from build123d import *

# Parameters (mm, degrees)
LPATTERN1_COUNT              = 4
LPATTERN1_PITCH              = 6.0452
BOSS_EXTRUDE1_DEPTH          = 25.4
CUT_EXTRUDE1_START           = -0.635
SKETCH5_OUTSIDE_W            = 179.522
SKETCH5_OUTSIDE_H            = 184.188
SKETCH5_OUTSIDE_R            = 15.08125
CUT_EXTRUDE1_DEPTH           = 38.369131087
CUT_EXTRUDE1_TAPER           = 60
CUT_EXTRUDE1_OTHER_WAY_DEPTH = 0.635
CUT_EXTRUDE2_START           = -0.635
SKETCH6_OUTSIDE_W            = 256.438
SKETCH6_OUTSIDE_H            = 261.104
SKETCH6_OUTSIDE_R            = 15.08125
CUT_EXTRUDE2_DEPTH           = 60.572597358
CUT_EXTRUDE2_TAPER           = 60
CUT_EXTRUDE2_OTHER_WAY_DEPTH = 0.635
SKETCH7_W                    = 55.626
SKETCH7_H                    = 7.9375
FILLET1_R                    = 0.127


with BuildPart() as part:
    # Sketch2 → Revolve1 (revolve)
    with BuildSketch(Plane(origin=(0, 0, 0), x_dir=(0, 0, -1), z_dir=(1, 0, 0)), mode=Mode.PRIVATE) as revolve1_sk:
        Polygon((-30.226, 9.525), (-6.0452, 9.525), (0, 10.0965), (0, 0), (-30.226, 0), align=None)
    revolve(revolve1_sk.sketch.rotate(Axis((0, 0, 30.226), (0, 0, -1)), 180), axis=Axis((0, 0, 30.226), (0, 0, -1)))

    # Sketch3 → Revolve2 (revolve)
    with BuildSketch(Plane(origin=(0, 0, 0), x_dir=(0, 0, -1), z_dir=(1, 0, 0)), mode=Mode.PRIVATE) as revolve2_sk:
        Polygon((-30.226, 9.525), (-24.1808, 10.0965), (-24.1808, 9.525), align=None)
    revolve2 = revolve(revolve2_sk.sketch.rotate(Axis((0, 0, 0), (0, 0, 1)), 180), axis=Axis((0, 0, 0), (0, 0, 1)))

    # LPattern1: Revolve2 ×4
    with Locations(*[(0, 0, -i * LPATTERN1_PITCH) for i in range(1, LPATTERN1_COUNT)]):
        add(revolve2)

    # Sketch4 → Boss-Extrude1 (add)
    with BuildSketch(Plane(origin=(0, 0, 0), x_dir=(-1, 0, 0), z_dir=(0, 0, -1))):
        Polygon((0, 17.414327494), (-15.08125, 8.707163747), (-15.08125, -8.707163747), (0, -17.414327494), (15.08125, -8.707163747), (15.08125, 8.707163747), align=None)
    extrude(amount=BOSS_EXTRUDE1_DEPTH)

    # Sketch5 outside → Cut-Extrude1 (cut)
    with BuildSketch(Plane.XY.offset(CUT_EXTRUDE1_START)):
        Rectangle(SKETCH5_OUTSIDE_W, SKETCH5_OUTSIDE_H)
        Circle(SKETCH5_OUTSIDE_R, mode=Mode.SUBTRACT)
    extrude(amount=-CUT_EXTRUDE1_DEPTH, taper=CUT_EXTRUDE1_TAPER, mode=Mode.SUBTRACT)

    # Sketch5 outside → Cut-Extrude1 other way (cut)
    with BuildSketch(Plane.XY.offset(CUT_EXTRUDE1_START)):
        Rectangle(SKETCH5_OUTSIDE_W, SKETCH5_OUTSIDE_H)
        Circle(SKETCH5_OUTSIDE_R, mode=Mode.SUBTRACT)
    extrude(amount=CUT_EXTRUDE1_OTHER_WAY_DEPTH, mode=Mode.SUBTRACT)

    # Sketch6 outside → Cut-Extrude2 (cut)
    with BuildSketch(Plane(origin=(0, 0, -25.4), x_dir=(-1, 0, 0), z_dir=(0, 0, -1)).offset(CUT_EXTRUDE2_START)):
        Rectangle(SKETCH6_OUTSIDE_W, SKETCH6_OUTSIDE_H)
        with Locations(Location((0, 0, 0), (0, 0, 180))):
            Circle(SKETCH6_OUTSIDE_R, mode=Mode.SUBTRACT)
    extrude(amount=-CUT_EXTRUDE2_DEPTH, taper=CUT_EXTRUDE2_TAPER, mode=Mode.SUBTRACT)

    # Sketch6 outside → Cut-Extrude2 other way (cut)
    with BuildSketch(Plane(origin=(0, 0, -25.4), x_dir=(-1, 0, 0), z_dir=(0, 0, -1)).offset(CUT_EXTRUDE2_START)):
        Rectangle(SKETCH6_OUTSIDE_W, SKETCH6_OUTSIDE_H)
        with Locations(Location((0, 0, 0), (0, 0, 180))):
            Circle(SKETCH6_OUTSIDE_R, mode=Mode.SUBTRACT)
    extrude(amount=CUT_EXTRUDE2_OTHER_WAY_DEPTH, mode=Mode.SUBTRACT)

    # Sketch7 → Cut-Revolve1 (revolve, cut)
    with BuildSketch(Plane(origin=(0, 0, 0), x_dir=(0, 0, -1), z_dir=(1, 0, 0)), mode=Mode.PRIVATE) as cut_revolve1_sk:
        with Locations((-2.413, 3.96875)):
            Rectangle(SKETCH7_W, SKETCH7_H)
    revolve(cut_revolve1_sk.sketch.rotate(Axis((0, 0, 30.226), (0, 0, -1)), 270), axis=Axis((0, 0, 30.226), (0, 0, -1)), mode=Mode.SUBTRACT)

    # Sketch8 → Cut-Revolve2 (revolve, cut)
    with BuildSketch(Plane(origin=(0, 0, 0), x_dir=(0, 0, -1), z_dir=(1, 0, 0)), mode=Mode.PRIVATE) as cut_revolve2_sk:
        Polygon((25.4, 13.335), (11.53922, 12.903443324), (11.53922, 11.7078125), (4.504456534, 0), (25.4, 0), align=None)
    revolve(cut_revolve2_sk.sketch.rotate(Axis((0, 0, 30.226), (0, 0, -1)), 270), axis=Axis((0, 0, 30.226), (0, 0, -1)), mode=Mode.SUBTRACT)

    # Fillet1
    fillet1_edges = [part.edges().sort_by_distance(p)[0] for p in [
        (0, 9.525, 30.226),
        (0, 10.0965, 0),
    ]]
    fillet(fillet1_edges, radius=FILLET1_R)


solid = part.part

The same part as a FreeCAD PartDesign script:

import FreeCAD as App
import Part
import Sketcher
from FreeCAD import Vector
Q = App.Units.Quantity


def edges_at(feature, points):
    """Names of the edges that pass closest to the given points."""
    edges = feature.Shape.Edges
    near = lambda p: min(range(len(edges)), key=lambda i: edges[i].distToShape(Part.Vertex(*p))[0])
    return sorted({f"Edge{near(p) + 1}" for p in points})

doc = App.newDocument("Part")
params = doc.addObject("Spreadsheet::Sheet", "Params")
for row, (alias, value) in enumerate([
    ("sketch1_height", "1.19 in"),
    ("sketch1_width", "0.375 in"),
    ("sketch1_height2", "0.952 in"),
    ("revolution_angle", "360 deg"),
    ("sketch2_height", "0.238 in"),
    ("revolution2_angle", "360 deg"),
    ("linearpattern_pitch", "0.238 in"),
    ("pad1_length", "1 in"),
    ("sketch4_diameter", "1.1875 in"),
    ("pocket1_length", "38.369131 mm"),
    ("pocket1_taper", "60 deg"),
    ("sketch5_diameter", "1.1875 in"),
    ("pocket2_length", "0.025 in"),
    ("sketch6_diameter", "1.1875 in"),
    ("pocket3_length", "60.572597 mm"),
    ("pocket3_taper", "60 deg"),
    ("sketch7_diameter", "1.1875 in"),
    ("pocket4_length", "0.025 in"),
    ("sketch8_height", "2.19 in"),
    ("sketch8_width", "0.3125 in"),
    ("groove_angle", "360 deg"),
    ("sketch9_width", "0.525 in"),
    ("groove2_angle", "360 deg"),
    ("fillet_radius", "0.005 in"),
], start=1):
    params.set(f"A{row}", alias)
    params.set(f"B{row}", "=" + value)
    params.setAlias(f"B{row}", alias)

body = doc.addObject("PartDesign::Body", "Body")

# Sketch on YZ plane
sketch1 = doc.addObject("Sketcher::SketchObject", "Sketch")
body.addObject(sketch1)
sketch1.AttachmentSupport = (doc.YZ_Plane, [""])
sketch1.MapMode = "FlatFace"
sketch1.addGeometry([
    Part.LineSegment(Vector(9.525, 6.0452, 0), Vector(9.525, 30.226, 0)),  # 0
    Part.LineSegment(Vector(9.525, 30.226, 0), Vector(0, 30.226, 0)),  # 1
    Part.LineSegment(Vector(0, 30.226, 0), Vector(0, 0, 0)),  # 2
    Part.LineSegment(Vector(0, 0, 0), Vector(10.0965, 0, 0)),  # 3
    Part.LineSegment(Vector(10.0965, 0, 0), Vector(9.525, 6.0452, 0)),  # 4
], False)
sketch1.addConstraint([
    Sketcher.Constraint("Coincident", 0, 2, 1, 1),
    Sketcher.Constraint("Coincident", 1, 2, 2, 1),
    Sketcher.Constraint("Coincident", 2, 2, 3, 1),
    Sketcher.Constraint("Coincident", 3, 2, 4, 1),
    Sketcher.Constraint("Coincident", 4, 2, 0, 1),
    Sketcher.Constraint("Vertical", 0),
    Sketcher.Constraint("Horizontal", 1),
    Sketcher.Constraint("Vertical", 2),
    Sketcher.Constraint("Horizontal", 3),
    Sketcher.Constraint("Coincident", 2, 2, -1, 1),
    Sketcher.Constraint("DistanceY", 2, 2, 2, 1, Q("1.19 in")),
    Sketcher.Constraint("DistanceX", 1, 2, 1, 1, Q("0.375 in")),
    Sketcher.Constraint("DistanceY", 0, 1, 0, 2, Q("0.952 in")),
    Sketcher.Constraint("DistanceX", 3, 1, 3, 2, Q("0.3975 in")),
])
sketch1.setExpression("Constraints[10]", "Params.sketch1_height")
sketch1.setExpression("Constraints[11]", "Params.sketch1_width")
sketch1.setExpression("Constraints[12]", "Params.sketch1_height2")
revolution = doc.addObject("PartDesign::Revolution", "Revolution")
body.addObject(revolution)
revolution.Profile = sketch1
revolution.ReferenceAxis = (sketch1, ["V_Axis"])
revolution.setExpression("Angle", "Params.revolution_angle")

# Sketch on YZ plane
sketch2 = doc.addObject("Sketcher::SketchObject", "Sketch001")
body.addObject(sketch2)
sketch2.AttachmentSupport = (doc.YZ_Plane, [""])
sketch2.MapMode = "FlatFace"
sketch2.addGeometry([
    Part.LineSegment(Vector(10.0965, 24.1808, 0), Vector(9.525, 30.226, 0)),
    Part.LineSegment(Vector(9.525, 30.226, 0), Vector(9.525, 24.1808, 0)),
    Part.LineSegment(Vector(9.525, 24.1808, 0), Vector(10.0965, 24.1808, 0)),
], False)
sketch2.addConstraint([
    Sketcher.Constraint("Coincident", 0, 2, 1, 1),
    Sketcher.Constraint("Coincident", 1, 2, 2, 1),
    Sketcher.Constraint("Coincident", 2, 2, 0, 1),
    Sketcher.Constraint("Vertical", 1),
    Sketcher.Constraint("Horizontal", 2),
    Sketcher.Constraint("DistanceY", 1, 2, 1, 1, Q("0.238 in")),
    Sketcher.Constraint("DistanceY", -1, 1, 0, 2, Q("1.19 in")),
    Sketcher.Constraint("DistanceX", 2, 1, 2, 2, Q("0.0225 in")),
    Sketcher.Constraint("DistanceX", -1, 1, 0, 2, Q("0.375 in")),
])
sketch2.setExpression("Constraints[5]", "Params.sketch2_height")
revolution2 = doc.addObject("PartDesign::Revolution", "Revolution001")
body.addObject(revolution2)
revolution2.Profile = sketch2
revolution2.ReferenceAxis = (sketch2, ["V_Axis"])
revolution2.setExpression("Angle", "Params.revolution2_angle")
doc.recompute()

linearpattern = doc.addObject("PartDesign::LinearPattern", "LinearPattern")
body.addObject(linearpattern)
linearpattern.Originals = [revolution2]
linearpattern.Direction = (doc.Z_Axis, [""])
linearpattern.Mode = "offset"
linearpattern.setExpression("Offset", "Params.linearpattern_pitch")
linearpattern.Occurrences = 4
linearpattern.Reversed = True
body.Tip = linearpattern

# Sketch on XY plane
sketch3 = doc.addObject("Sketcher::SketchObject", "Sketch002")
body.addObject(sketch3)
sketch3.AttachmentSupport = (doc.XY_Plane, [""])
sketch3.MapMode = "FlatFace"
sketch3.addGeometry([
    Part.LineSegment(Vector(0, 17.414327, 0), Vector(15.08125, 8.707164, 0)),  # 0
    Part.LineSegment(Vector(15.08125, 8.707164, 0), Vector(15.08125, -8.707164, 0)),  # 1
    Part.LineSegment(Vector(15.08125, -8.707164, 0), Vector(0, -17.414327, 0)),  # 2
    Part.LineSegment(Vector(0, -17.414327, 0), Vector(-15.08125, -8.707164, 0)),  # 3
    Part.LineSegment(Vector(-15.08125, -8.707164, 0), Vector(-15.08125, 8.707164, 0)),  # 4
    Part.LineSegment(Vector(-15.08125, 8.707164, 0), Vector(0, 17.414327, 0)),  # 5
], False)
sketch3.addConstraint([
    Sketcher.Constraint("Coincident", 0, 2, 1, 1),
    Sketcher.Constraint("Coincident", 1, 2, 2, 1),
    Sketcher.Constraint("Coincident", 2, 2, 3, 1),
    Sketcher.Constraint("Coincident", 3, 2, 4, 1),
    Sketcher.Constraint("Coincident", 4, 2, 5, 1),
    Sketcher.Constraint("Coincident", 5, 2, 0, 1),
    Sketcher.Constraint("Vertical", 1),
    Sketcher.Constraint("Vertical", 4),
    Sketcher.Constraint("Symmetric", 0, 2, 3, 2, -1, 1),
    Sketcher.Constraint("Symmetric", 2, 2, 5, 2, -1, 1),
    Sketcher.Constraint("PointOnObject", 2, 2, -2),
    Sketcher.Constraint("Parallel", 2, 5),
    Sketcher.Constraint("Horizontal", 1, 2, 3, 2),
    Sketcher.Constraint("Angle", 0, Q("-30 deg")),
    Sketcher.Constraint("DistanceX", -1, 1, 0, 2, Q("0.59375 in")),
    Sketcher.Constraint("DistanceY", 1, 2, 1, 1, 17.414327),
])
pad1 = doc.addObject("PartDesign::Pad", "Pad")
body.addObject(pad1)
pad1.Profile = sketch3
pad1.setExpression("Length", "Params.pad1_length")
pad1.Reversed = True

# Sketch on XY plane
sketch4 = doc.addObject("Sketcher::SketchObject", "Sketch003")
body.addObject(sketch4)
sketch4.AttachmentSupport = (doc.XY_Plane, [""])
sketch4.MapMode = "FlatFace"
sketch4.AttachmentOffset = App.Placement(Vector(0, 0, -0.025 * 25.4), App.Rotation())
sketch4.addGeometry([
    Part.LineSegment(Vector(-89.761, 92.094, 0), Vector(-89.761, -92.094, 0)),  # 0
    Part.LineSegment(Vector(-89.761, -92.094, 0), Vector(89.761, -92.094, 0)),  # 1
    Part.LineSegment(Vector(89.761, -92.094, 0), Vector(89.761, 92.094, 0)),  # 2
    Part.LineSegment(Vector(89.761, 92.094, 0), Vector(-89.761, 92.094, 0)),  # 3
    Part.Circle(Vector(0, 0, 0), Vector(0, 0, 1), 15.08125),  # 4
], False)
sketch4.addConstraint([
    Sketcher.Constraint("Coincident", 0, 2, 1, 1),
    Sketcher.Constraint("Coincident", 1, 2, 2, 1),
    Sketcher.Constraint("Coincident", 2, 2, 3, 1),
    Sketcher.Constraint("Coincident", 3, 2, 0, 1),
    Sketcher.Constraint("Vertical", 0),
    Sketcher.Constraint("Horizontal", 1),
    Sketcher.Constraint("Vertical", 2),
    Sketcher.Constraint("Horizontal", 3),
    Sketcher.Constraint("Coincident", 4, 3, -1, 1),
    Sketcher.Constraint("Symmetric", 0, 2, 2, 2, -1, 1),
    Sketcher.Constraint("Diameter", 4, Q("1.1875 in")),
    Sketcher.Constraint("DistanceX", 1, 1, 1, 2, 179.522),
    Sketcher.Constraint("DistanceY", 0, 2, 0, 1, 184.188),
])
sketch4.setExpression("Constraints[10]", "Params.sketch4_diameter")
pocket1 = doc.addObject("PartDesign::Pocket", "Pocket")
body.addObject(pocket1)
pocket1.Profile = sketch4
pocket1.setExpression("Length", "Params.pocket1_length")
pocket1.setExpression("TaperAngle", "Params.pocket1_taper")

# Sketch on XY plane
sketch5 = doc.addObject("Sketcher::SketchObject", "Sketch004")
body.addObject(sketch5)
sketch5.AttachmentSupport = (doc.XY_Plane, [""])
sketch5.MapMode = "FlatFace"
sketch5.AttachmentOffset = App.Placement(Vector(0, 0, -0.025 * 25.4), App.Rotation())
sketch5.addGeometry([
    Part.LineSegment(Vector(-89.761, 92.094, 0), Vector(-89.761, -92.094, 0)),  # 0
    Part.LineSegment(Vector(-89.761, -92.094, 0), Vector(89.761, -92.094, 0)),  # 1
    Part.LineSegment(Vector(89.761, -92.094, 0), Vector(89.761, 92.094, 0)),  # 2
    Part.LineSegment(Vector(89.761, 92.094, 0), Vector(-89.761, 92.094, 0)),  # 3
    Part.Circle(Vector(0, 0, 0), Vector(0, 0, 1), 15.08125),  # 4
], False)
sketch5.addConstraint([
    Sketcher.Constraint("Coincident", 0, 2, 1, 1),
    Sketcher.Constraint("Coincident", 1, 2, 2, 1),
    Sketcher.Constraint("Coincident", 2, 2, 3, 1),
    Sketcher.Constraint("Coincident", 3, 2, 0, 1),
    Sketcher.Constraint("Vertical", 0),
    Sketcher.Constraint("Horizontal", 1),
    Sketcher.Constraint("Vertical", 2),
    Sketcher.Constraint("Horizontal", 3),
    Sketcher.Constraint("Coincident", 4, 3, -1, 1),
    Sketcher.Constraint("Symmetric", 0, 2, 2, 2, -1, 1),
    Sketcher.Constraint("Diameter", 4, Q("1.1875 in")),
    Sketcher.Constraint("DistanceX", 1, 1, 1, 2, 179.522),
    Sketcher.Constraint("DistanceY", 0, 2, 0, 1, 184.188),
])
sketch5.setExpression("Constraints[10]", "Params.sketch5_diameter")
pocket2 = doc.addObject("PartDesign::Pocket", "Pocket001")
body.addObject(pocket2)
pocket2.Profile = sketch5
pocket2.setExpression("Length", "Params.pocket2_length")
pocket2.Reversed = True

# Sketch on XY plane
sketch6 = doc.addObject("Sketcher::SketchObject", "Sketch005")
body.addObject(sketch6)
sketch6.AttachmentSupport = (doc.XY_Plane, [""])
sketch6.MapMode = "FlatFace"
sketch6.AttachmentOffset = App.Placement(Vector(0, 0, -0.975 * 25.4), App.Rotation())
sketch6.addGeometry([
    Part.LineSegment(Vector(128.219, 130.552, 0), Vector(128.219, -130.552, 0)),  # 0
    Part.LineSegment(Vector(128.219, -130.552, 0), Vector(-128.219, -130.552, 0)),  # 1
    Part.LineSegment(Vector(-128.219, -130.552, 0), Vector(-128.219, 130.552, 0)),  # 2
    Part.LineSegment(Vector(-128.219, 130.552, 0), Vector(128.219, 130.552, 0)),  # 3
    Part.Circle(Vector(0, 0, 0), Vector(0, 0, 1), 15.08125),  # 4
], False)
sketch6.addConstraint([
    Sketcher.Constraint("Coincident", 0, 2, 1, 1),
    Sketcher.Constraint("Coincident", 1, 2, 2, 1),
    Sketcher.Constraint("Coincident", 2, 2, 3, 1),
    Sketcher.Constraint("Coincident", 3, 2, 0, 1),
    Sketcher.Constraint("Vertical", 0),
    Sketcher.Constraint("Horizontal", 1),
    Sketcher.Constraint("Vertical", 2),
    Sketcher.Constraint("Horizontal", 3),
    Sketcher.Constraint("Coincident", 4, 3, -1, 1),
    Sketcher.Constraint("Symmetric", 0, 2, 2, 2, -1, 1),
    Sketcher.Constraint("Diameter", 4, Q("1.1875 in")),
    Sketcher.Constraint("DistanceX", 1, 2, 1, 1, 256.438),
    Sketcher.Constraint("DistanceY", 0, 2, 0, 1, 261.104),
])
sketch6.setExpression("Constraints[10]", "Params.sketch6_diameter")
pocket3 = doc.addObject("PartDesign::Pocket", "Pocket002")
body.addObject(pocket3)
pocket3.Profile = sketch6
pocket3.setExpression("Length", "Params.pocket3_length")
pocket3.Reversed = True
pocket3.setExpression("TaperAngle", "Params.pocket3_taper")

# Sketch on XY plane
sketch7 = doc.addObject("Sketcher::SketchObject", "Sketch006")
body.addObject(sketch7)
sketch7.AttachmentSupport = (doc.XY_Plane, [""])
sketch7.MapMode = "FlatFace"
sketch7.AttachmentOffset = App.Placement(Vector(0, 0, -0.975 * 25.4), App.Rotation())
sketch7.addGeometry([
    Part.LineSegment(Vector(128.219, 130.552, 0), Vector(128.219, -130.552, 0)),  # 0
    Part.LineSegment(Vector(128.219, -130.552, 0), Vector(-128.219, -130.552, 0)),  # 1
    Part.LineSegment(Vector(-128.219, -130.552, 0), Vector(-128.219, 130.552, 0)),  # 2
    Part.LineSegment(Vector(-128.219, 130.552, 0), Vector(128.219, 130.552, 0)),  # 3
    Part.Circle(Vector(0, 0, 0), Vector(0, 0, 1), 15.08125),  # 4
], False)
sketch7.addConstraint([
    Sketcher.Constraint("Coincident", 0, 2, 1, 1),
    Sketcher.Constraint("Coincident", 1, 2, 2, 1),
    Sketcher.Constraint("Coincident", 2, 2, 3, 1),
    Sketcher.Constraint("Coincident", 3, 2, 0, 1),
    Sketcher.Constraint("Vertical", 0),
    Sketcher.Constraint("Horizontal", 1),
    Sketcher.Constraint("Vertical", 2),
    Sketcher.Constraint("Horizontal", 3),
    Sketcher.Constraint("Coincident", 4, 3, -1, 1),
    Sketcher.Constraint("Symmetric", 0, 2, 2, 2, -1, 1),
    Sketcher.Constraint("Diameter", 4, Q("1.1875 in")),
    Sketcher.Constraint("DistanceX", 1, 2, 1, 1, 256.438),
    Sketcher.Constraint("DistanceY", 0, 2, 0, 1, 261.104),
])
sketch7.setExpression("Constraints[10]", "Params.sketch7_diameter")
pocket4 = doc.addObject("PartDesign::Pocket", "Pocket003")
body.addObject(pocket4)
pocket4.Profile = sketch7
pocket4.setExpression("Length", "Params.pocket4_length")

# Sketch on YZ plane
sketch8 = doc.addObject("Sketcher::SketchObject", "Sketch007")
body.addObject(sketch8)
sketch8.AttachmentSupport = (doc.YZ_Plane, [""])
sketch8.MapMode = "FlatFace"
sketch8.addGeometry([
    Part.LineSegment(Vector(7.9375, 30.226, 0), Vector(0, 30.226, 0)),
    Part.LineSegment(Vector(0, 30.226, 0), Vector(0, -25.4, 0)),
    Part.LineSegment(Vector(0, -25.4, 0), Vector(7.9375, -25.4, 0)),
    Part.LineSegment(Vector(7.9375, -25.4, 0), Vector(7.9375, 30.226, 0)),
], False)
sketch8.addConstraint([
    Sketcher.Constraint("Coincident", 0, 2, 1, 1),
    Sketcher.Constraint("Coincident", 1, 2, 2, 1),
    Sketcher.Constraint("Coincident", 2, 2, 3, 1),
    Sketcher.Constraint("Coincident", 3, 2, 0, 1),
    Sketcher.Constraint("Horizontal", 0),
    Sketcher.Constraint("Vertical", 1),
    Sketcher.Constraint("Horizontal", 2),
    Sketcher.Constraint("Vertical", 3),
    Sketcher.Constraint("PointOnObject", 0, 2, -2),
    Sketcher.Constraint("DistanceY", 1, 2, -1, 1, Q("1 in")),
    Sketcher.Constraint("DistanceY", 1, 2, 1, 1, Q("2.19 in")),
    Sketcher.Constraint("DistanceX", 0, 2, 0, 1, Q("0.3125 in")),
])
sketch8.setExpression("Constraints[10]", "Params.sketch8_height")
sketch8.setExpression("Constraints[11]", "Params.sketch8_width")
groove = doc.addObject("PartDesign::Groove", "Groove")
body.addObject(groove)
groove.Profile = sketch8
groove.ReferenceAxis = (sketch8, ["V_Axis"])
groove.setExpression("Angle", "Params.groove_angle")

# Sketch on YZ plane
sketch9 = doc.addObject("Sketcher::SketchObject", "Sketch008")
body.addObject(sketch9)
sketch9.AttachmentSupport = (doc.YZ_Plane, [""])
sketch9.MapMode = "FlatFace"
sketch9.addGeometry([
    Part.LineSegment(Vector(13.335, -25.4, 0), Vector(12.903443, -11.53922, 0)),  # 0
    Part.LineSegment(Vector(12.903443, -11.53922, 0), Vector(11.707812, -11.53922, 0)),  # 1
    Part.LineSegment(Vector(11.707812, -11.53922, 0), Vector(0, -4.504457, 0)),  # 2
    Part.LineSegment(Vector(0, -4.504457, 0), Vector(0, -25.4, 0)),  # 3
    Part.LineSegment(Vector(0, -25.4, 0), Vector(13.335, -25.4, 0)),  # 4
], False)
sketch9.addConstraint([
    Sketcher.Constraint("Coincident", 0, 2, 1, 1),
    Sketcher.Constraint("Coincident", 1, 2, 2, 1),
    Sketcher.Constraint("Coincident", 2, 2, 3, 1),
    Sketcher.Constraint("Coincident", 3, 2, 4, 1),
    Sketcher.Constraint("Coincident", 4, 2, 0, 1),
    Sketcher.Constraint("Horizontal", 1),
    Sketcher.Constraint("Vertical", 3),
    Sketcher.Constraint("Horizontal", 4),
    Sketcher.Constraint("PointOnObject", 2, 2, -2),
    Sketcher.Constraint("DistanceY", 3, 2, -1, 1, Q("1 in")),
    Sketcher.Constraint("Angle", 2, Q("149 deg")),
    Sketcher.Constraint("DistanceX", 4, 1, 4, 2, Q("0.525 in")),
    Sketcher.Constraint("DistanceY", 0, 2, -1, 1, Q("0.4543 in")),
    Sketcher.Constraint("DistanceX", 1, 2, 1, 1, 1.195631),
    Sketcher.Constraint("DistanceY", 3, 2, 3, 1, 20.895543),
])
sketch9.setExpression("Constraints[11]", "Params.sketch9_width")
groove2 = doc.addObject("PartDesign::Groove", "Groove001")
body.addObject(groove2)
groove2.Profile = sketch9
groove2.ReferenceAxis = (sketch9, ["V_Axis"])
groove2.setExpression("Angle", "Params.groove2_angle")
doc.recompute()

fillet = doc.addObject("PartDesign::Fillet", "Fillet")
body.addObject(fillet)
fillet.Base = (groove2, edges_at(groove2, [(0, 9.525, 30.226), (0, 10.097, 0)]))
fillet.setExpression("Radius", "Params.fillet_radius")

doc.recompute()
